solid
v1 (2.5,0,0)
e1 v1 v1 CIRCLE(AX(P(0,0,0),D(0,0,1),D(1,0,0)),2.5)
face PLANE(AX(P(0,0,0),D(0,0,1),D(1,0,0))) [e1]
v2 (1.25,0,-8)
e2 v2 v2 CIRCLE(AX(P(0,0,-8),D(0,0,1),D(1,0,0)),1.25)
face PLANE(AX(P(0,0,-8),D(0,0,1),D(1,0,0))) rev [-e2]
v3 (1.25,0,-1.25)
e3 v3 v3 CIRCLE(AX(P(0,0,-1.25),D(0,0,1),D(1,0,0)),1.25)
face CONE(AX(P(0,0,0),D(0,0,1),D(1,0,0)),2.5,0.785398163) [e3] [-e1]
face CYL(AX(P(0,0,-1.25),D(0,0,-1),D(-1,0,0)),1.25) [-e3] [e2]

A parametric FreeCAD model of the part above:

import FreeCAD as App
import Part
import Sketcher

V = App.Vector
Q = App.Units.Quantity


def faces_at(feature, points):
    """Names of the faces that lie closest to the given points."""
    faces = feature.Shape.Faces
    near = lambda p: min(range(len(faces)), key=lambda i: faces[i].distToShape(Part.Vertex(*p))[0])
    return sorted({f"Face{near(p) + 1}" for p in points})

doc = App.newDocument("Part")
body = doc.addObject("PartDesign::Body", "Body")

# Sketch on XY plane
sketch1 = body.newObject("Sketcher::SketchObject", "Sketch")
sketch1.AttachmentSupport = (doc.getObject("XY_Plane"), [""])
sketch1.MapMode = "FlatFace"
sketch1.addGeometry(Part.Circle(V(0, 0, 0), V(0, 0, 1), 2.5), False)
sketch1.addConstraint([
    Sketcher.Constraint("Coincident", 0, 3, -1, 1),
    Sketcher.Constraint("Diameter", 0, Q("5 mm")),
])
pad1 = body.newObject("PartDesign::Pad", "Pad")
pad1.Profile = sketch1
pad1.Length = 1.25
pad1.Reversed = True
doc.recompute()

draft = body.newObject("PartDesign::Draft", "Draft")
draft.Base = (pad1, faces_at(pad1, [(-2.5, 0, -0.625)]))
draft.NeutralPlane = (doc.getObject("XY_Plane"), [""])
draft.Angle = 45
draft.Reversed = True

# Sketch on XY plane
sketch2 = body.newObject("Sketcher::SketchObject", "Sketch001")
sketch2.AttachmentSupport = (doc.getObject("XY_Plane"), [""])
sketch2.MapMode = "FlatFace"
sketch2.AttachmentOffset = App.Placement(V(0, 0, -8), App.Rotation())
sketch2.addGeometry(Part.Circle(V(0, 0, 0), V(0, 0, 1), 1.25), False)
sketch2.addConstraint([
    Sketcher.Constraint("Coincident", 0, 3, -1, 1),
    Sketcher.Constraint("Diameter", 0, Q("2.5 mm")),
])
pad2 = body.newObject("PartDesign::Pad", "Pad001")
pad2.Profile = sketch2
pad2.Length = 6.75

doc.recompute()
